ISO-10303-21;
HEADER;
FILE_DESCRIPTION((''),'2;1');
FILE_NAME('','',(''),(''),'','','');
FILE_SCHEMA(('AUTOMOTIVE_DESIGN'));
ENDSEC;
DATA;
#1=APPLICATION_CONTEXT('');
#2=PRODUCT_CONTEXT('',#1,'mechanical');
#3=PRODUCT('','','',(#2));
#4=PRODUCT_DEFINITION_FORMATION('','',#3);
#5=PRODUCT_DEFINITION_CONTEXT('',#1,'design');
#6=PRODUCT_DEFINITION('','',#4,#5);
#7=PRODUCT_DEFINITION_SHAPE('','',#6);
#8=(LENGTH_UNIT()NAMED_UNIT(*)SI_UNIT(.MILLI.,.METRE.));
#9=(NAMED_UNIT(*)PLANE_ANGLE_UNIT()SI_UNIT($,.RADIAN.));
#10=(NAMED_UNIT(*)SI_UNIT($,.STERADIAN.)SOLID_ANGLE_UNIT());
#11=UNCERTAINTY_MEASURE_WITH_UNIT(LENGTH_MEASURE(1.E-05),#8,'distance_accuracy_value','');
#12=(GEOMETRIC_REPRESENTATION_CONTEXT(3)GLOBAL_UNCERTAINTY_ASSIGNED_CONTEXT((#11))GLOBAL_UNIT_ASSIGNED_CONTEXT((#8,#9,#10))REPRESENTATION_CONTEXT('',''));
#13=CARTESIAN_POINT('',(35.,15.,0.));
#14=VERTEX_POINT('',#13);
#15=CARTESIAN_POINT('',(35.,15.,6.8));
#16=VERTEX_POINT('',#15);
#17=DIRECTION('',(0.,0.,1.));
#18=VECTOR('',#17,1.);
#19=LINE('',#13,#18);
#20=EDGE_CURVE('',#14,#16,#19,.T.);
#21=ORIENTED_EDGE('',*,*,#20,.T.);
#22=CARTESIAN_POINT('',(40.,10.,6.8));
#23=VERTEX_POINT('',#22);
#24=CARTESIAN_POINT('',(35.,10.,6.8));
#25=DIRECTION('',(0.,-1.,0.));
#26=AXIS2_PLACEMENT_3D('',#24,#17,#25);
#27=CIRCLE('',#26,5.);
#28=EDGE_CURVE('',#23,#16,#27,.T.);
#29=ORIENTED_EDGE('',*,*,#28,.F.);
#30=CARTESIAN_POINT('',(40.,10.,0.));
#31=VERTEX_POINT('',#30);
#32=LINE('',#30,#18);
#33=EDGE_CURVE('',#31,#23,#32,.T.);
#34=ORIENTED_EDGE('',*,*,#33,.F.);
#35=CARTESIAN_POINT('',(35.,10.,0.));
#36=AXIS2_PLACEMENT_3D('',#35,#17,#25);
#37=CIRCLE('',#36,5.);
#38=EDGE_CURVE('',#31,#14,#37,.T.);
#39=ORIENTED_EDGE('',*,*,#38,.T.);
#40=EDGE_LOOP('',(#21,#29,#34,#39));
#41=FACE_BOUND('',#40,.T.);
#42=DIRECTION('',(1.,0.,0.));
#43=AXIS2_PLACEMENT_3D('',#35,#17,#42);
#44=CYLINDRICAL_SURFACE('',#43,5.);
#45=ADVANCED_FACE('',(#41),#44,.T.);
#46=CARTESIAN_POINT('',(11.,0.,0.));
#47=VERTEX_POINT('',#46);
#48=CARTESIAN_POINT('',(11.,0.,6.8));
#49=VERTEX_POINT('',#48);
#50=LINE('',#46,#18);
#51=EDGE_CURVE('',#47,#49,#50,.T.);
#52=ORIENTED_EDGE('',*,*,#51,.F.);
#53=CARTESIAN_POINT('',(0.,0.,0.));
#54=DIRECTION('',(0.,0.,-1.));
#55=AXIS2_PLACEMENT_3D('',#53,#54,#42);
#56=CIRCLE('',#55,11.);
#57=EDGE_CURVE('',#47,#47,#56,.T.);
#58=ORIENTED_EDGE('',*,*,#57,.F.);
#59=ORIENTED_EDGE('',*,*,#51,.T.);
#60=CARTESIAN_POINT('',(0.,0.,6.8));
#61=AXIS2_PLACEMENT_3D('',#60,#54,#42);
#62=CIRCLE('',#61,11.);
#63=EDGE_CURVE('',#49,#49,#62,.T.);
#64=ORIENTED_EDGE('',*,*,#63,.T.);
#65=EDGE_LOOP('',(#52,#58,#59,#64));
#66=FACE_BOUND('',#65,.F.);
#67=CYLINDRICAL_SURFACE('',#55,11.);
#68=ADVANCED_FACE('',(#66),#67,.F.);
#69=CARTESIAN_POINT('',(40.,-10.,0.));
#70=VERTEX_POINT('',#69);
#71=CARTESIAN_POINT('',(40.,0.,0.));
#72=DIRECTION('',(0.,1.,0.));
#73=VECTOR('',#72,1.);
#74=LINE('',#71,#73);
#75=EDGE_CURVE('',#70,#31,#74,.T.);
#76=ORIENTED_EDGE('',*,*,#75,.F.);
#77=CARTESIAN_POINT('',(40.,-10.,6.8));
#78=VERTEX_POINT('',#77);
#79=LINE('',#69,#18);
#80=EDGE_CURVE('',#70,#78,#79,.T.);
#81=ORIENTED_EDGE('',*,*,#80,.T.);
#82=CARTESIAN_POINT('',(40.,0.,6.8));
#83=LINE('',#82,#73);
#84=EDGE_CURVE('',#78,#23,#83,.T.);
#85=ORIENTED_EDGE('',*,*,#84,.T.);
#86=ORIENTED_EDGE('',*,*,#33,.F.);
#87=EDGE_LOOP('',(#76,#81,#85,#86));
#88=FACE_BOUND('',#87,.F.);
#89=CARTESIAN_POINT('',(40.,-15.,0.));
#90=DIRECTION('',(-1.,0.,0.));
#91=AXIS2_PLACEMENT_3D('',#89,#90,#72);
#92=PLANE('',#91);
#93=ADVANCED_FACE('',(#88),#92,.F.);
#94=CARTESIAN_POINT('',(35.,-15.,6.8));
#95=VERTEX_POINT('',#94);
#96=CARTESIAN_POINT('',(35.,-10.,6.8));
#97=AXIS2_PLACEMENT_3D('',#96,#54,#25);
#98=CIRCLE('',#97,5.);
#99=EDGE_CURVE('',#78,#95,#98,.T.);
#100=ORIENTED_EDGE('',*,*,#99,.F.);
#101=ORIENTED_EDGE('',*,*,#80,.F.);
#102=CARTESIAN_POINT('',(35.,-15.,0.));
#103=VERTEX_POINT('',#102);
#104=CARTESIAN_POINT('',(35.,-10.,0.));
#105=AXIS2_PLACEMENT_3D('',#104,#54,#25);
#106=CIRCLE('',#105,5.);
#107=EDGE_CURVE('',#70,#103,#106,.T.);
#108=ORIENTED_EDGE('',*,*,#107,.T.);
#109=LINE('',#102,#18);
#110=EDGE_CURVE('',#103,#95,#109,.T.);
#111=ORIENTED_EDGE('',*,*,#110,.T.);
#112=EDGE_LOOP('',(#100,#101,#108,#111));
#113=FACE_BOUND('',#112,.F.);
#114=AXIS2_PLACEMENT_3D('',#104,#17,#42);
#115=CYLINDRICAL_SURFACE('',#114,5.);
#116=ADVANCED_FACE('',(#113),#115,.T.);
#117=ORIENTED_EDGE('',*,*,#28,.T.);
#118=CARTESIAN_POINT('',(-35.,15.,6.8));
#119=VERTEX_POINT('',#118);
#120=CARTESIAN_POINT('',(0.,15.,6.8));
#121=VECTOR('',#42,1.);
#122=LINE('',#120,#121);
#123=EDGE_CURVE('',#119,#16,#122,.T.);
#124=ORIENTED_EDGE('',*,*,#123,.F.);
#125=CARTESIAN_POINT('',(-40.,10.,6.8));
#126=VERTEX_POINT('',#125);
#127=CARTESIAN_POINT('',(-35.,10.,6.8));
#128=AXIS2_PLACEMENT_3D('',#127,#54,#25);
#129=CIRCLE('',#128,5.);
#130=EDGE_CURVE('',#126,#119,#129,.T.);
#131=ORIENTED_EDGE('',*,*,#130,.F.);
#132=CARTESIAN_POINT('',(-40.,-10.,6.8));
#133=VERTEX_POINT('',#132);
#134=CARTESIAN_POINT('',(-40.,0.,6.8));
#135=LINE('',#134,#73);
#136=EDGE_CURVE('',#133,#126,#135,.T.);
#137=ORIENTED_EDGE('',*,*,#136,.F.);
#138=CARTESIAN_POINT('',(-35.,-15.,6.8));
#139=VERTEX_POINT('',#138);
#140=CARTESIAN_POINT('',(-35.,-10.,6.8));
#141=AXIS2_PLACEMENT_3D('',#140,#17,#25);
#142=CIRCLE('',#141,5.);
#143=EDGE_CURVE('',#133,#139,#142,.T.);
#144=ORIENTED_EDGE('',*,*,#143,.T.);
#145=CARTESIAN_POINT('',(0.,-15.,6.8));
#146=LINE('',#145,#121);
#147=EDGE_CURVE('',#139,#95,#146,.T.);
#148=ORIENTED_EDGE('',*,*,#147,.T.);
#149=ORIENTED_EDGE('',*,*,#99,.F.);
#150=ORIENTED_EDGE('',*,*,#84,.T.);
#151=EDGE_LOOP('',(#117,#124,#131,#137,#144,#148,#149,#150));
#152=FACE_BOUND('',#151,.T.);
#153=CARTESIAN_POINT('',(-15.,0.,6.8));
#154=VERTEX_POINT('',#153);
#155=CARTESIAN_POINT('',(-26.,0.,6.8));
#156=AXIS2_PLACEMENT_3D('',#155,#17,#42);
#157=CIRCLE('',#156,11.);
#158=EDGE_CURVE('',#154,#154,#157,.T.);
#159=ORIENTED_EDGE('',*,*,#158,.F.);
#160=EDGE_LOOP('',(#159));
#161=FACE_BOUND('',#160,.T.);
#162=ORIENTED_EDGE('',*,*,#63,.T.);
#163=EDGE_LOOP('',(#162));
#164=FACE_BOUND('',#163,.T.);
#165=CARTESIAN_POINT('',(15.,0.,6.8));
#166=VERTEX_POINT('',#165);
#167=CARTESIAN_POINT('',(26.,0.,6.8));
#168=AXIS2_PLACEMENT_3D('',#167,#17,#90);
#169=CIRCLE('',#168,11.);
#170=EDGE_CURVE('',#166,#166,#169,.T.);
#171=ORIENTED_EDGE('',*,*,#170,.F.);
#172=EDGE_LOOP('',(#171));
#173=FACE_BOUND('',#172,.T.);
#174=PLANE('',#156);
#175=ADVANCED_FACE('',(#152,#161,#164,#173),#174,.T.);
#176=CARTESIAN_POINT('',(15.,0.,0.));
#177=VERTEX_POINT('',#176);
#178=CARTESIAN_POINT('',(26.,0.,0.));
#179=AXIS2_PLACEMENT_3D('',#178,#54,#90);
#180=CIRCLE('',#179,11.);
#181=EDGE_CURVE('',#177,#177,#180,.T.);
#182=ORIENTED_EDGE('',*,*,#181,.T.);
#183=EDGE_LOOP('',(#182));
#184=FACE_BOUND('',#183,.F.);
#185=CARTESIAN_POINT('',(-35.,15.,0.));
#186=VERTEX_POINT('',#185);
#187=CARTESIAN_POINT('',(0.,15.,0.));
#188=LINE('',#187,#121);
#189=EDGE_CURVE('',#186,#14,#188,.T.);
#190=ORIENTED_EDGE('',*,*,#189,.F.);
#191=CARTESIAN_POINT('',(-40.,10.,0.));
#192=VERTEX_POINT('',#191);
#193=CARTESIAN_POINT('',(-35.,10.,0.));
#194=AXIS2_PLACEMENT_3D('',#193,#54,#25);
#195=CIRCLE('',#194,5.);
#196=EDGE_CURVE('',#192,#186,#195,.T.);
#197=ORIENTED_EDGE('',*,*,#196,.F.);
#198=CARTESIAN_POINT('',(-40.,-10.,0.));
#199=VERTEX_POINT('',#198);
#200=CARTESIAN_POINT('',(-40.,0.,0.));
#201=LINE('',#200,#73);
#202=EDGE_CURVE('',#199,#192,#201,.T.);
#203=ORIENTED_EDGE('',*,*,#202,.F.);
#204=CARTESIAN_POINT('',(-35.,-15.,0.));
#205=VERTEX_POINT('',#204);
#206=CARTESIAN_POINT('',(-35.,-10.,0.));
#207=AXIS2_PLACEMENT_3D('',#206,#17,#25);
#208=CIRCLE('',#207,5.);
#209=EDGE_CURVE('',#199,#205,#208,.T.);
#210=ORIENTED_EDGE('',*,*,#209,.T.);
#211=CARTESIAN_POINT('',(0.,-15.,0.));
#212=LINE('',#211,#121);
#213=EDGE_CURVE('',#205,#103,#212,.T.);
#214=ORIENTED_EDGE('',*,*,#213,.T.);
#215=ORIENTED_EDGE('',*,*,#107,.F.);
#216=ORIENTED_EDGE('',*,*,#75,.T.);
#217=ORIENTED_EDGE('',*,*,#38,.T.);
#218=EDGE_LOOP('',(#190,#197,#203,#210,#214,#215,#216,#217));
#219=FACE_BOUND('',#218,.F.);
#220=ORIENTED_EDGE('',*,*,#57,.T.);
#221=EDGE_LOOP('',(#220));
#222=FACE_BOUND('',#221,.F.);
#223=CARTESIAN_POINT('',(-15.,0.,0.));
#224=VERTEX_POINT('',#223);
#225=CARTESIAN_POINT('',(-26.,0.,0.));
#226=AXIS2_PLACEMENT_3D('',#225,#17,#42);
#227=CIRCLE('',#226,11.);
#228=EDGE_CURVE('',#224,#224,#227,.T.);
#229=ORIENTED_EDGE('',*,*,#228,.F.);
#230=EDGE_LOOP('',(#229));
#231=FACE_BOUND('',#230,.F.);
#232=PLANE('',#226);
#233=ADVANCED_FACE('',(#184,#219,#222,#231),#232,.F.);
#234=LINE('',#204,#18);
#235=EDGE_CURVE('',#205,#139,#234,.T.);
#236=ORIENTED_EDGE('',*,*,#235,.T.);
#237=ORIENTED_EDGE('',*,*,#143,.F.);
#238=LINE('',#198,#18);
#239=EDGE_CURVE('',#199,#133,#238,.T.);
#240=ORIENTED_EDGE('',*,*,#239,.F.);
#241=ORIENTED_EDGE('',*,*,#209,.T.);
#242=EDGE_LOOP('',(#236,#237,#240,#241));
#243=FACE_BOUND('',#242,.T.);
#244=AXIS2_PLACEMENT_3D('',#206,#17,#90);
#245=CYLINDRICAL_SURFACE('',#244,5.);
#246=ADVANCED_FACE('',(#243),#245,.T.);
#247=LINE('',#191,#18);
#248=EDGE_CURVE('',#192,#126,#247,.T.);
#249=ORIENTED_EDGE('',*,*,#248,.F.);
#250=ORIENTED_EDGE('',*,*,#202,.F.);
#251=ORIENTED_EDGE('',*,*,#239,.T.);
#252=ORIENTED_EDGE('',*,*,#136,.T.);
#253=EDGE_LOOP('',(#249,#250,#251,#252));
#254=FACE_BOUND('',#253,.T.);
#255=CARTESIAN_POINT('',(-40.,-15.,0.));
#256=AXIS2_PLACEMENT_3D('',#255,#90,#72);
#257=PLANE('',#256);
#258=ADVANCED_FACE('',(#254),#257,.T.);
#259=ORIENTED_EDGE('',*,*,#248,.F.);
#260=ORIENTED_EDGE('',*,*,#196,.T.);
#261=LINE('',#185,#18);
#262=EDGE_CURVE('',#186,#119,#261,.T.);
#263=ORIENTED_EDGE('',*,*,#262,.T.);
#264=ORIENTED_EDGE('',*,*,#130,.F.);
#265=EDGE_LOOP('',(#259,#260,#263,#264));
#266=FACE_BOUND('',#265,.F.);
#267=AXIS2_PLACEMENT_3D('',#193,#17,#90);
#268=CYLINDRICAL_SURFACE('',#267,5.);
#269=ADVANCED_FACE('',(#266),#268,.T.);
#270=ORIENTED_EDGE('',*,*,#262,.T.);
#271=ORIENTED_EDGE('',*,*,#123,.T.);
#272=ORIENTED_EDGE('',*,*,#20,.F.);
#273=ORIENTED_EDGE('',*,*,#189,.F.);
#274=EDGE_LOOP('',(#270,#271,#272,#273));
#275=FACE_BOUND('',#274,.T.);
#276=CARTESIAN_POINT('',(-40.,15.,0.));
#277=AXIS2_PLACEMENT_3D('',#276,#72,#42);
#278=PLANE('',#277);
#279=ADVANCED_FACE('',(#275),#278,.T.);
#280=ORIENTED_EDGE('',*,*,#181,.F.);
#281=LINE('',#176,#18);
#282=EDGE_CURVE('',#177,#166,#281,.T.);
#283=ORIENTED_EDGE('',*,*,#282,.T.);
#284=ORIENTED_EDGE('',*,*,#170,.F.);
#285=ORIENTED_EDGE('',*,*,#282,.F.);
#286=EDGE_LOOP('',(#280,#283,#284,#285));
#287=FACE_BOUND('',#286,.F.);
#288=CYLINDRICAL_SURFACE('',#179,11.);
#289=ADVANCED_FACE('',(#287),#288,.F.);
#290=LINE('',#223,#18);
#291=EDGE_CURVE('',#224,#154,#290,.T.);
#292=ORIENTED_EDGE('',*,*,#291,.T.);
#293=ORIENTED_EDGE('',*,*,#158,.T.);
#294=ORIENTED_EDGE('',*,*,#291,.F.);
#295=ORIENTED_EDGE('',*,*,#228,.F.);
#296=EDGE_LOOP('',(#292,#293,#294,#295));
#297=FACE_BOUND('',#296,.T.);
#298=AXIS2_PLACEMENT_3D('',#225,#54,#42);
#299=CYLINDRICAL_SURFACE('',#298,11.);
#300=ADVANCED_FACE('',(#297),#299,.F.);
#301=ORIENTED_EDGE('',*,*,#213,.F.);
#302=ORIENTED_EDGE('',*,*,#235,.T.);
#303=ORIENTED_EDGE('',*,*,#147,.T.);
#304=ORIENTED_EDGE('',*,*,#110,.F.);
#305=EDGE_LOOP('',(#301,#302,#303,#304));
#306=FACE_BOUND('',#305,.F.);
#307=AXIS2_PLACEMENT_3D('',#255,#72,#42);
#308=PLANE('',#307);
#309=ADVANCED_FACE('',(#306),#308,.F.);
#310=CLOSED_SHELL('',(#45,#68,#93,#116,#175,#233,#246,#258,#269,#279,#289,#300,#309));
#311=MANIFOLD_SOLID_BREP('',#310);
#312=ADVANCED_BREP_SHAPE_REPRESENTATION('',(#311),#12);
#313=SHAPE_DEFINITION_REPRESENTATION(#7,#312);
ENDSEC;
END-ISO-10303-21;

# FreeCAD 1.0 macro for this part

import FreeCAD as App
import Part
import Sketcher
from FreeCAD import Vector


def edges_at(feature, points):
    """Names of the edges that pass closest to the given points."""
    edges = feature.Shape.Edges
    near = lambda p: min(range(len(edges)), key=lambda i: edges[i].distToShape(Part.Vertex(*p))[0])
    return sorted({f"Edge{near(p) + 1}" for p in points})

doc = App.newDocument("Part")
body = doc.addObject("PartDesign::Body", "Body")

# Sketch on XY plane
sketch1 = body.newObject("Sketcher::SketchObject", "Sketch")
sketch1.AttachmentSupport = (doc.getObject("XY_Plane"), [""])
sketch1.MapMode = "FlatFace"
sketch1.addGeometry([
    Part.LineSegment(Vector(-40, 15, 0), Vector(-40, -15, 0)),  # 0
    Part.LineSegment(Vector(-40, -15, 0), Vector(40, -15, 0)),  # 1
    Part.LineSegment(Vector(40, -15, 0), Vector(40, 15, 0)),  # 2
    Part.LineSegment(Vector(40, 15, 0), Vector(-40, 15, 0)),  # 3
    Part.Circle(Vector(-26, 0, 0), Vector(0, 0, 1), 11),  # 4
    Part.Circle(Vector(0, 0, 0), Vector(0, 0, 1), 11),  # 5
    Part.Circle(Vector(26, 0, 0), Vector(0, 0, 1), 11),  # 6
], False)
sketch1.addConstraint([
    Sketcher.Constraint("Coincident", 0, 2, 1, 1),
    Sketcher.Constraint("Coincident", 1, 2, 2, 1),
    Sketcher.Constraint("Coincident", 2, 2, 3, 1),
    Sketcher.Constraint("Coincident", 3, 2, 0, 1),
    Sketcher.Constraint("Vertical", 0),
    Sketcher.Constraint("Horizontal", 1),
    Sketcher.Constraint("Vertical", 2),
    Sketcher.Constraint("Horizontal", 3),
    Sketcher.Constraint("Coincident", 5, 3, -1, 1),
    Sketcher.Constraint("Equal", 4, 5),
    Sketcher.Constraint("Equal", 5, 6),
    Sketcher.Constraint("Symmetric", 4, 3, 6, 3, -1, 1),
    Sketcher.Constraint("Symmetric", 0, 2, 2, 2, -1, 1),
    Sketcher.Constraint("PointOnObject", 4, 3, -1),
    Sketcher.Constraint("Diameter", 4, 22.0),
    Sketcher.Constraint("DistanceX", 1, 1, 1, 2, 80.0),
    Sketcher.Constraint("DistanceY", 0, 2, 0, 1, 30.0),
    Sketcher.Constraint("DistanceX", 4, 3, -1, 1, 26.0),
])
pad1 = body.newObject("PartDesign::Pad", "Pad")
pad1.Profile = sketch1
pad1.Length = 6.8

# Sketch on XY plane
sketch2 = body.newObject("Sketcher::SketchObject", "Sketch001")
sketch2.AttachmentSupport = (doc.getObject("XY_Plane"), [""])
sketch2.MapMode = "FlatFace"
sketch2.addGeometry([
    Part.Circle(Vector(26, 0, 0), Vector(0, 0, 1), 11),
    Part.Circle(Vector(0, 0, 0), Vector(0, 0, 1), 11),
    Part.Circle(Vector(-26, 0, 0), Vector(0, 0, 1), 11),
], False)
sketch2.addConstraint([
    Sketcher.Constraint("Coincident", 1, 3, -1, 1),
    Sketcher.Constraint("Equal", 0, 1),
    Sketcher.Constraint("Equal", 1, 2),
    Sketcher.Constraint("Symmetric", 0, 3, 2, 3, -1, 1),
    Sketcher.Constraint("PointOnObject", 0, 3, -1),
    Sketcher.Constraint("Diameter", 0, 22.0),
    Sketcher.Constraint("DistanceX", -1, 1, 0, 3, 26.0),
])
pocket1 = body.newObject("PartDesign::Pocket", "Pocket")
pocket1.Profile = sketch2
pocket1.Length = 25
pocket1.Reversed = True
doc.recompute()

fillet = body.newObject("PartDesign::Fillet", "Fillet")
fillet.Base = (pocket1, edges_at(pocket1, [
    (-40, -15, 3.4),
    (-40, 15, 3.4),
    (40, 15, 3.4),
    (40, -15, 3.4),
]))
fillet.Radius = 5

doc.recompute()
